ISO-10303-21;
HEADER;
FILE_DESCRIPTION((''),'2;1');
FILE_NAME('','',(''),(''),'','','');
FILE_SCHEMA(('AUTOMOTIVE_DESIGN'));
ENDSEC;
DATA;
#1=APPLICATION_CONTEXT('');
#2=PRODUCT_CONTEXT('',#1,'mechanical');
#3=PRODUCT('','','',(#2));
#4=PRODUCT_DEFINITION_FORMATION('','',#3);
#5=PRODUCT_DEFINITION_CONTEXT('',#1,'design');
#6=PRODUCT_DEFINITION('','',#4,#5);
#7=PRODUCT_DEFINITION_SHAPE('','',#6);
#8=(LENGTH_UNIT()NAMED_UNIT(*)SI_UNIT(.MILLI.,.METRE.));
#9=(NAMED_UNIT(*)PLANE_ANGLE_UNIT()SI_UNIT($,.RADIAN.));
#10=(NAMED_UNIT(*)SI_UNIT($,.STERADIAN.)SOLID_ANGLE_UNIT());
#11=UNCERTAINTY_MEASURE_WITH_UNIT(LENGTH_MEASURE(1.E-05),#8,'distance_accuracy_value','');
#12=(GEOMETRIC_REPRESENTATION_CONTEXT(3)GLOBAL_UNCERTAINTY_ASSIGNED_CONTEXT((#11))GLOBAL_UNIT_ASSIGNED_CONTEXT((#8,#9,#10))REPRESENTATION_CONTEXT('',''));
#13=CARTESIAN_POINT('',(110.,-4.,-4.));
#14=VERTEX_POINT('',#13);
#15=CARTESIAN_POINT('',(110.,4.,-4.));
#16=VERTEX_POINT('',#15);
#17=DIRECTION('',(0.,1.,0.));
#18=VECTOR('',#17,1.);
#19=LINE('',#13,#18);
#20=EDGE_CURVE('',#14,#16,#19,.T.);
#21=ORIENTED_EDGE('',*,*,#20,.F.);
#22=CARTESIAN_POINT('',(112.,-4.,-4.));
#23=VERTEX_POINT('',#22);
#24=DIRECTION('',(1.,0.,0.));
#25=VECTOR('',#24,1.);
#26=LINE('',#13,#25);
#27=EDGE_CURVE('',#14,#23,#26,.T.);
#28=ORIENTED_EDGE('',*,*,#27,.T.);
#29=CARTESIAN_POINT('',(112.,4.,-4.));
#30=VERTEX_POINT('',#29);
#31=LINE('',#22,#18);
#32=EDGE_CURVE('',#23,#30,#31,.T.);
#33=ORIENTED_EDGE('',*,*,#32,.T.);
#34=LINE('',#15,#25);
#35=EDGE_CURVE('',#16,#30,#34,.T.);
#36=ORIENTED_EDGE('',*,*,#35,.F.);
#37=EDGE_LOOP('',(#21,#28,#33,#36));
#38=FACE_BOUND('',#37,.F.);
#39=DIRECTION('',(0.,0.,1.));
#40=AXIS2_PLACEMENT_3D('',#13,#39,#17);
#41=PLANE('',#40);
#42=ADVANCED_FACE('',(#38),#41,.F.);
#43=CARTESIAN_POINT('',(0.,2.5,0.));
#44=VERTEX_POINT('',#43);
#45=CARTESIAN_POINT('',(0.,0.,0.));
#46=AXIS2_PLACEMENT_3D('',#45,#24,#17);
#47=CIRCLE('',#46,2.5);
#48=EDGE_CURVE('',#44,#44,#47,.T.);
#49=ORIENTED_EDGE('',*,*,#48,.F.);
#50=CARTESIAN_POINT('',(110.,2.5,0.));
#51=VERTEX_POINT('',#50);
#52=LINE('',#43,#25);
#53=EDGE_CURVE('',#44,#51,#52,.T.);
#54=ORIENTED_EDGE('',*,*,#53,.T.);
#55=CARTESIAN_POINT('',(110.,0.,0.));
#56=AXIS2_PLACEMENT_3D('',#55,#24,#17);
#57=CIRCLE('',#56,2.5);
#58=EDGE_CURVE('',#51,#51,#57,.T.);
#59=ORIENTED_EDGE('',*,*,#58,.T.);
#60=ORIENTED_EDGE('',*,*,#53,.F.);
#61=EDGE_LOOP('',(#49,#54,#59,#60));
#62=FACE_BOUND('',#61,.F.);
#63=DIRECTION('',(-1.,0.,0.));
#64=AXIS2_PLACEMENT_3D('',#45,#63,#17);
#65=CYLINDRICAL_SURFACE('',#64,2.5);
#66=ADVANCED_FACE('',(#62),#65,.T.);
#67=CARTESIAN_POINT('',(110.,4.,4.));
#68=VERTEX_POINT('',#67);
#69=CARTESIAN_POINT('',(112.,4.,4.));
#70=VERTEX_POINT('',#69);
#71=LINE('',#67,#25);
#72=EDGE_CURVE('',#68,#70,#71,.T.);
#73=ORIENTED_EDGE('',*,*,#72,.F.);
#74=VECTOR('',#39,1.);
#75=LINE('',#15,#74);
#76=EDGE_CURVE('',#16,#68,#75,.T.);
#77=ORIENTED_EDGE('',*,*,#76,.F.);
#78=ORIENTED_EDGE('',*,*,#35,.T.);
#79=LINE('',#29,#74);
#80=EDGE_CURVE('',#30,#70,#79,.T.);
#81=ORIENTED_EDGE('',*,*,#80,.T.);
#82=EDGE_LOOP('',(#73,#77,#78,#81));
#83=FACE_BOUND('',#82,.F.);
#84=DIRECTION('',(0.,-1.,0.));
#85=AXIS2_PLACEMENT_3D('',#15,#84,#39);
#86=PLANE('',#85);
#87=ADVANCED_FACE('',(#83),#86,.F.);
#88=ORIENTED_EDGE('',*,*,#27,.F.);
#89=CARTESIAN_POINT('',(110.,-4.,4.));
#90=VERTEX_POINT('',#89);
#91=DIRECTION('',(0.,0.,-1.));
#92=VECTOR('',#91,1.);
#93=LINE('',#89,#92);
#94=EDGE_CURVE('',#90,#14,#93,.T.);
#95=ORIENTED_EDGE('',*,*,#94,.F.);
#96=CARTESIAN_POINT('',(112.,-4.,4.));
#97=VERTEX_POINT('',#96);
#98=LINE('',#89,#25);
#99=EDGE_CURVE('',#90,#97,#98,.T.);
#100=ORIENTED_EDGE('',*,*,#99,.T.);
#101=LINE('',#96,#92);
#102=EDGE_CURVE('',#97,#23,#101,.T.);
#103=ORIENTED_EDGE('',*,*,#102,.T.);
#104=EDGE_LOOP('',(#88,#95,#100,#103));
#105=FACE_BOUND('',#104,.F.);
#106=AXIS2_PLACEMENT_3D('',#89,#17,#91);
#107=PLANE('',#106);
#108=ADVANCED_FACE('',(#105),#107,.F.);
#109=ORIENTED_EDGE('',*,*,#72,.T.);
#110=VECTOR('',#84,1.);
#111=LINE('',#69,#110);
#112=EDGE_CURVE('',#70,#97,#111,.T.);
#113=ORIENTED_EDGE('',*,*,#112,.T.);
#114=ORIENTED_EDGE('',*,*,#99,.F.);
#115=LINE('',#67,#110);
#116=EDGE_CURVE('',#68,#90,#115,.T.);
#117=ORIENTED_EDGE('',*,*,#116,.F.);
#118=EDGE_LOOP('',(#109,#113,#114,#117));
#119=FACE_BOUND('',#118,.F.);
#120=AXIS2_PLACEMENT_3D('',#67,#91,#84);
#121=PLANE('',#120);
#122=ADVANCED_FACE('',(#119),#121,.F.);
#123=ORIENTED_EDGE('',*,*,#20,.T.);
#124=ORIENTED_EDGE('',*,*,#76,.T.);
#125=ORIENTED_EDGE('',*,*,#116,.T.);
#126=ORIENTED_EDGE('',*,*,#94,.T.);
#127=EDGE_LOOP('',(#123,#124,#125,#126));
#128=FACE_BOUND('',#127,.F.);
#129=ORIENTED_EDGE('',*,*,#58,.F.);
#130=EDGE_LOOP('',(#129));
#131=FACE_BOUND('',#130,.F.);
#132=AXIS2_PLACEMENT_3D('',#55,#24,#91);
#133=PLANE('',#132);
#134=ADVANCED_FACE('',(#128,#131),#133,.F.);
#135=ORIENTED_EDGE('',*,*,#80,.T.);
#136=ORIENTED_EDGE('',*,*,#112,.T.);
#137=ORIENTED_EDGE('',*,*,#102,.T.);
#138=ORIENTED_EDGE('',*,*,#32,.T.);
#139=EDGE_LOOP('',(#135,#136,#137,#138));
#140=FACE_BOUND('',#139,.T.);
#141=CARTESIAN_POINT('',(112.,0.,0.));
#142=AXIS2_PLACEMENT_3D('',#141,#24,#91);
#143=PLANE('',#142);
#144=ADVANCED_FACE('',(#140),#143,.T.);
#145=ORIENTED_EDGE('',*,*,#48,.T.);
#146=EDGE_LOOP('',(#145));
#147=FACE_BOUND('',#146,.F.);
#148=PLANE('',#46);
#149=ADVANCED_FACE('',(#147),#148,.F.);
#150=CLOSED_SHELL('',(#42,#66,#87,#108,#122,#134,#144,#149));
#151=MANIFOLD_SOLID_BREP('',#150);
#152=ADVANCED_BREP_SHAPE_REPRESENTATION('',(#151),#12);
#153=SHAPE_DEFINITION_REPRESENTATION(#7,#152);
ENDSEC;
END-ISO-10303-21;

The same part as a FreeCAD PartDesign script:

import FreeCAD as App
import Part
import Sketcher
from FreeCAD import Vector
Q = App.Units.Quantity


def add_polygon(sketch, points):
    """Adds a closed chain of lines whose ends are joined by coincident constraints."""
    first, n = sketch.GeometryCount, len(points)
    for a, b in zip(points, points[1:] + points[:1]):
        sketch.addGeometry(Part.LineSegment(App.Vector(*a, 0), App.Vector(*b, 0)), False)
    for i in range(n):
        sketch.addConstraint(Sketcher.Constraint("Coincident", first + i, 2, first + (i + 1) % n, 1))

doc = App.newDocument("Part")
body = doc.addObject("PartDesign::Body", "Body")

sketch1 = body.newObject("Sketcher::SketchObject", "Sketch")
sketch1.AttachmentSupport = (doc.getObject("YZ_Plane"), [""])
sketch1.MapMode = "FlatFace"
sketch1.addGeometry(Part.Circle(Vector(0, 0, 0), Vector(0, 0, 1), 2.5), False)
sketch1.addConstraint([
    Sketcher.Constraint("Coincident", 0, 3, -1, 1),
    Sketcher.Constraint("Diameter", 0, Q("5 mm")),
])
pad1 = body.newObject("PartDesign::Pad", "Pad")
pad1.Profile = sketch1
pad1.Length = 110

sketch2 = body.newObject("Sketcher::SketchObject", "Sketch001")
sketch2.AttachmentSupport = (doc.getObject("YZ_Plane"), [""])
sketch2.MapMode = "FlatFace"
sketch2.AttachmentOffset = App.Placement(Vector(0, 0, 110), App.Rotation())
add_polygon(sketch2, [(-4, -4), (4, -4), (4, 4), (-4, 4)])
sketch2.addConstraint([
    Sketcher.Constraint("Horizontal", 0),
    Sketcher.Constraint("Vertical", 1),
    Sketcher.Constraint("Horizontal", 2),
    Sketcher.Constraint("Vertical", 3),
    Sketcher.Constraint("Symmetric", 0, 2, 2, 2, -1, 1),
    Sketcher.Constraint("Equal", 2, 1),
    Sketcher.Constraint("DistanceX", 0, 1, 0, 2, Q("8 mm")),
])
pad2 = body.newObject("PartDesign::Pad", "Pad001")
pad2.Profile = sketch2
pad2.Length = 2

doc.recompute()
